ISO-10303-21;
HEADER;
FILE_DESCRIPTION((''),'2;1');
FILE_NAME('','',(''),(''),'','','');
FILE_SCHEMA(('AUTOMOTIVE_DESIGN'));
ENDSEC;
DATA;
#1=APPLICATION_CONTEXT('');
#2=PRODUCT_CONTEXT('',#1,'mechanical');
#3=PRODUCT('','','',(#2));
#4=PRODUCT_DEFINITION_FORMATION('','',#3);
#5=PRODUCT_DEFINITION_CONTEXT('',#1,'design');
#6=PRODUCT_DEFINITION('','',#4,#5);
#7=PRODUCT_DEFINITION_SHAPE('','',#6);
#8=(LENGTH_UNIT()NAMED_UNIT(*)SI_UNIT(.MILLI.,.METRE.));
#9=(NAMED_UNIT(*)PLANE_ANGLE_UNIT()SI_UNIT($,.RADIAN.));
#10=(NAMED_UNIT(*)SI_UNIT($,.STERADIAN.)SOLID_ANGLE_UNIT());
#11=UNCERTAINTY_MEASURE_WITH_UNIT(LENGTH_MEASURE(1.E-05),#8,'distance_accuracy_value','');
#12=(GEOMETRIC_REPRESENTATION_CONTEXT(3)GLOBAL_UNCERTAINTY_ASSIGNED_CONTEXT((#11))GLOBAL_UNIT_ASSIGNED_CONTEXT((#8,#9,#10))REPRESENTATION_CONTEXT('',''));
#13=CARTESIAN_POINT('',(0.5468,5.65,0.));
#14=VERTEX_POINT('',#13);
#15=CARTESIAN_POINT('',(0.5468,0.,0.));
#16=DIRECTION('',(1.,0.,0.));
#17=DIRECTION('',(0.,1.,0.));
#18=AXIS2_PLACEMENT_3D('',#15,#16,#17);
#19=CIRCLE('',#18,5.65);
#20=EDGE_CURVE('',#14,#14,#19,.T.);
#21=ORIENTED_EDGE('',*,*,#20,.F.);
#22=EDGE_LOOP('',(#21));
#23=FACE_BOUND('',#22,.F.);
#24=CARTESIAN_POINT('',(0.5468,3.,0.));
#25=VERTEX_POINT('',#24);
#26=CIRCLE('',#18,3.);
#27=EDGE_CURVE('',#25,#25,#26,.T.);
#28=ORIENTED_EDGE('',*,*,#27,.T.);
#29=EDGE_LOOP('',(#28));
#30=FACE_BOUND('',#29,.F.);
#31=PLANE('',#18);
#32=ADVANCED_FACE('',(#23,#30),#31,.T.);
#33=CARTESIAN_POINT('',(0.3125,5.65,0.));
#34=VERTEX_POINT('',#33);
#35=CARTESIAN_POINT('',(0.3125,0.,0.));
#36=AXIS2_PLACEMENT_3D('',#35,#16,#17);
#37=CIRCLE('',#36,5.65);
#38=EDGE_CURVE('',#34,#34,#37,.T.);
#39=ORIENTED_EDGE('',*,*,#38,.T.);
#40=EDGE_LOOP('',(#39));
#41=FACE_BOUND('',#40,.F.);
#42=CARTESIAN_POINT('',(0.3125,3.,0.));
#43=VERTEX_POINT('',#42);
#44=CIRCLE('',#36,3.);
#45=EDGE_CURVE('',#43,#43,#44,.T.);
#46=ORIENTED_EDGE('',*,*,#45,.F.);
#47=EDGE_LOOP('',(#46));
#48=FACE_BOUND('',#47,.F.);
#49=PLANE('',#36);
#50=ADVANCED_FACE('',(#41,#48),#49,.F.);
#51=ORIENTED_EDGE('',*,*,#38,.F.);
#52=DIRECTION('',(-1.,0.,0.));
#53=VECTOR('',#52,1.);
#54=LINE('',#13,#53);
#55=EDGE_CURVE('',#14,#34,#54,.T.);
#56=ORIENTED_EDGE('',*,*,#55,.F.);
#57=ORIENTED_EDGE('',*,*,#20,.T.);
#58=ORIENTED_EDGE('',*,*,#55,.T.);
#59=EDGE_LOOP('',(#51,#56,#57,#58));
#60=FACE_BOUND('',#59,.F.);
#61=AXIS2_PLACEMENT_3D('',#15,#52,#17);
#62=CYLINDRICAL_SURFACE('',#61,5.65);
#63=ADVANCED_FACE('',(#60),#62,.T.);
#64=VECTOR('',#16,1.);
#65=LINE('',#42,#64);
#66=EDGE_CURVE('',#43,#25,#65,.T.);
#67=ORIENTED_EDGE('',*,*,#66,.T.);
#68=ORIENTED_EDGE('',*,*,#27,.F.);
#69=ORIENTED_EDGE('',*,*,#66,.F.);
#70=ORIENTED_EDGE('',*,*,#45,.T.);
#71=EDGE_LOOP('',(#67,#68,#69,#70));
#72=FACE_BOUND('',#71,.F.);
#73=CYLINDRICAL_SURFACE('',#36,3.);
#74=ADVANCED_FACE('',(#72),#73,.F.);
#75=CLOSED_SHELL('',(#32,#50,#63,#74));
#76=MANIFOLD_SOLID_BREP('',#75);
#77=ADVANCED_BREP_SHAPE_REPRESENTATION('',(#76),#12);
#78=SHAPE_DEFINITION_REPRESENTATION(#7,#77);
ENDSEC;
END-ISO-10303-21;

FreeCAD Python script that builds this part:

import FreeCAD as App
import Part
import Sketcher

V = App.Vector
Q = App.Units.Quantity

doc = App.newDocument("Part")
body = doc.addObject("PartDesign::Body", "Body")

sketch1 = doc.addObject("Sketcher::SketchObject", "Sketch")
body.addObject(sketch1)
sketch1.AttachmentSupport = (doc.XY_Plane, [""])
sketch1.MapMode = "FlatFace"
sketch1.addGeometry(Part.LineSegment(V(0.31, 5.65, 0), V(0.31, 3, 0)), False)
sketch1.addGeometry(Part.LineSegment(V(0.31, 3, 0), V(0.55, 3, 0)), False)
sketch1.addGeometry(Part.LineSegment(V(0.55, 3, 0), V(0.55, 5.65, 0)), False)
sketch1.addGeometry(Part.LineSegment(V(0.55, 5.65, 0), V(0.31, 5.65, 0)), False)
sketch1.addConstraint(Sketcher.Constraint("Coincident", 0, 2, 1, 1))
sketch1.addConstraint(Sketcher.Constraint("Coincident", 1, 2, 2, 1))
sketch1.addConstraint(Sketcher.Constraint("Coincident", 2, 2, 3, 1))
sketch1.addConstraint(Sketcher.Constraint("Coincident", 3, 2, 0, 1))
sketch1.addConstraint(Sketcher.Constraint("Vertical", 0))
sketch1.addConstraint(Sketcher.Constraint("Horizontal", 1))
sketch1.addConstraint(Sketcher.Constraint("Vertical", 2))
sketch1.addConstraint(Sketcher.Constraint("Horizontal", 3))
sketch1.addConstraint(Sketcher.Constraint("DistanceY", -1, 1, 0, 2, Q("3 mm")))
sketch1.addConstraint(Sketcher.Constraint("DistanceY", 0, 2, 0, 1, Q("2.65 mm")))
sketch1.addConstraint(Sketcher.Constraint("DistanceX", 1, 1, 1, 2, Q("0.2343 mm")))
sketch1.addConstraint(Sketcher.Constraint("DistanceX", -1, 1, 0, 2, Q("0.3125 mm")))
revolution = doc.addObject("PartDesign::Revolution", "Revolution")
body.addObject(revolution)
revolution.Profile = sketch1
revolution.ReferenceAxis = (sketch1, ["H_Axis"])
revolution.Angle = 360

doc.recompute()
